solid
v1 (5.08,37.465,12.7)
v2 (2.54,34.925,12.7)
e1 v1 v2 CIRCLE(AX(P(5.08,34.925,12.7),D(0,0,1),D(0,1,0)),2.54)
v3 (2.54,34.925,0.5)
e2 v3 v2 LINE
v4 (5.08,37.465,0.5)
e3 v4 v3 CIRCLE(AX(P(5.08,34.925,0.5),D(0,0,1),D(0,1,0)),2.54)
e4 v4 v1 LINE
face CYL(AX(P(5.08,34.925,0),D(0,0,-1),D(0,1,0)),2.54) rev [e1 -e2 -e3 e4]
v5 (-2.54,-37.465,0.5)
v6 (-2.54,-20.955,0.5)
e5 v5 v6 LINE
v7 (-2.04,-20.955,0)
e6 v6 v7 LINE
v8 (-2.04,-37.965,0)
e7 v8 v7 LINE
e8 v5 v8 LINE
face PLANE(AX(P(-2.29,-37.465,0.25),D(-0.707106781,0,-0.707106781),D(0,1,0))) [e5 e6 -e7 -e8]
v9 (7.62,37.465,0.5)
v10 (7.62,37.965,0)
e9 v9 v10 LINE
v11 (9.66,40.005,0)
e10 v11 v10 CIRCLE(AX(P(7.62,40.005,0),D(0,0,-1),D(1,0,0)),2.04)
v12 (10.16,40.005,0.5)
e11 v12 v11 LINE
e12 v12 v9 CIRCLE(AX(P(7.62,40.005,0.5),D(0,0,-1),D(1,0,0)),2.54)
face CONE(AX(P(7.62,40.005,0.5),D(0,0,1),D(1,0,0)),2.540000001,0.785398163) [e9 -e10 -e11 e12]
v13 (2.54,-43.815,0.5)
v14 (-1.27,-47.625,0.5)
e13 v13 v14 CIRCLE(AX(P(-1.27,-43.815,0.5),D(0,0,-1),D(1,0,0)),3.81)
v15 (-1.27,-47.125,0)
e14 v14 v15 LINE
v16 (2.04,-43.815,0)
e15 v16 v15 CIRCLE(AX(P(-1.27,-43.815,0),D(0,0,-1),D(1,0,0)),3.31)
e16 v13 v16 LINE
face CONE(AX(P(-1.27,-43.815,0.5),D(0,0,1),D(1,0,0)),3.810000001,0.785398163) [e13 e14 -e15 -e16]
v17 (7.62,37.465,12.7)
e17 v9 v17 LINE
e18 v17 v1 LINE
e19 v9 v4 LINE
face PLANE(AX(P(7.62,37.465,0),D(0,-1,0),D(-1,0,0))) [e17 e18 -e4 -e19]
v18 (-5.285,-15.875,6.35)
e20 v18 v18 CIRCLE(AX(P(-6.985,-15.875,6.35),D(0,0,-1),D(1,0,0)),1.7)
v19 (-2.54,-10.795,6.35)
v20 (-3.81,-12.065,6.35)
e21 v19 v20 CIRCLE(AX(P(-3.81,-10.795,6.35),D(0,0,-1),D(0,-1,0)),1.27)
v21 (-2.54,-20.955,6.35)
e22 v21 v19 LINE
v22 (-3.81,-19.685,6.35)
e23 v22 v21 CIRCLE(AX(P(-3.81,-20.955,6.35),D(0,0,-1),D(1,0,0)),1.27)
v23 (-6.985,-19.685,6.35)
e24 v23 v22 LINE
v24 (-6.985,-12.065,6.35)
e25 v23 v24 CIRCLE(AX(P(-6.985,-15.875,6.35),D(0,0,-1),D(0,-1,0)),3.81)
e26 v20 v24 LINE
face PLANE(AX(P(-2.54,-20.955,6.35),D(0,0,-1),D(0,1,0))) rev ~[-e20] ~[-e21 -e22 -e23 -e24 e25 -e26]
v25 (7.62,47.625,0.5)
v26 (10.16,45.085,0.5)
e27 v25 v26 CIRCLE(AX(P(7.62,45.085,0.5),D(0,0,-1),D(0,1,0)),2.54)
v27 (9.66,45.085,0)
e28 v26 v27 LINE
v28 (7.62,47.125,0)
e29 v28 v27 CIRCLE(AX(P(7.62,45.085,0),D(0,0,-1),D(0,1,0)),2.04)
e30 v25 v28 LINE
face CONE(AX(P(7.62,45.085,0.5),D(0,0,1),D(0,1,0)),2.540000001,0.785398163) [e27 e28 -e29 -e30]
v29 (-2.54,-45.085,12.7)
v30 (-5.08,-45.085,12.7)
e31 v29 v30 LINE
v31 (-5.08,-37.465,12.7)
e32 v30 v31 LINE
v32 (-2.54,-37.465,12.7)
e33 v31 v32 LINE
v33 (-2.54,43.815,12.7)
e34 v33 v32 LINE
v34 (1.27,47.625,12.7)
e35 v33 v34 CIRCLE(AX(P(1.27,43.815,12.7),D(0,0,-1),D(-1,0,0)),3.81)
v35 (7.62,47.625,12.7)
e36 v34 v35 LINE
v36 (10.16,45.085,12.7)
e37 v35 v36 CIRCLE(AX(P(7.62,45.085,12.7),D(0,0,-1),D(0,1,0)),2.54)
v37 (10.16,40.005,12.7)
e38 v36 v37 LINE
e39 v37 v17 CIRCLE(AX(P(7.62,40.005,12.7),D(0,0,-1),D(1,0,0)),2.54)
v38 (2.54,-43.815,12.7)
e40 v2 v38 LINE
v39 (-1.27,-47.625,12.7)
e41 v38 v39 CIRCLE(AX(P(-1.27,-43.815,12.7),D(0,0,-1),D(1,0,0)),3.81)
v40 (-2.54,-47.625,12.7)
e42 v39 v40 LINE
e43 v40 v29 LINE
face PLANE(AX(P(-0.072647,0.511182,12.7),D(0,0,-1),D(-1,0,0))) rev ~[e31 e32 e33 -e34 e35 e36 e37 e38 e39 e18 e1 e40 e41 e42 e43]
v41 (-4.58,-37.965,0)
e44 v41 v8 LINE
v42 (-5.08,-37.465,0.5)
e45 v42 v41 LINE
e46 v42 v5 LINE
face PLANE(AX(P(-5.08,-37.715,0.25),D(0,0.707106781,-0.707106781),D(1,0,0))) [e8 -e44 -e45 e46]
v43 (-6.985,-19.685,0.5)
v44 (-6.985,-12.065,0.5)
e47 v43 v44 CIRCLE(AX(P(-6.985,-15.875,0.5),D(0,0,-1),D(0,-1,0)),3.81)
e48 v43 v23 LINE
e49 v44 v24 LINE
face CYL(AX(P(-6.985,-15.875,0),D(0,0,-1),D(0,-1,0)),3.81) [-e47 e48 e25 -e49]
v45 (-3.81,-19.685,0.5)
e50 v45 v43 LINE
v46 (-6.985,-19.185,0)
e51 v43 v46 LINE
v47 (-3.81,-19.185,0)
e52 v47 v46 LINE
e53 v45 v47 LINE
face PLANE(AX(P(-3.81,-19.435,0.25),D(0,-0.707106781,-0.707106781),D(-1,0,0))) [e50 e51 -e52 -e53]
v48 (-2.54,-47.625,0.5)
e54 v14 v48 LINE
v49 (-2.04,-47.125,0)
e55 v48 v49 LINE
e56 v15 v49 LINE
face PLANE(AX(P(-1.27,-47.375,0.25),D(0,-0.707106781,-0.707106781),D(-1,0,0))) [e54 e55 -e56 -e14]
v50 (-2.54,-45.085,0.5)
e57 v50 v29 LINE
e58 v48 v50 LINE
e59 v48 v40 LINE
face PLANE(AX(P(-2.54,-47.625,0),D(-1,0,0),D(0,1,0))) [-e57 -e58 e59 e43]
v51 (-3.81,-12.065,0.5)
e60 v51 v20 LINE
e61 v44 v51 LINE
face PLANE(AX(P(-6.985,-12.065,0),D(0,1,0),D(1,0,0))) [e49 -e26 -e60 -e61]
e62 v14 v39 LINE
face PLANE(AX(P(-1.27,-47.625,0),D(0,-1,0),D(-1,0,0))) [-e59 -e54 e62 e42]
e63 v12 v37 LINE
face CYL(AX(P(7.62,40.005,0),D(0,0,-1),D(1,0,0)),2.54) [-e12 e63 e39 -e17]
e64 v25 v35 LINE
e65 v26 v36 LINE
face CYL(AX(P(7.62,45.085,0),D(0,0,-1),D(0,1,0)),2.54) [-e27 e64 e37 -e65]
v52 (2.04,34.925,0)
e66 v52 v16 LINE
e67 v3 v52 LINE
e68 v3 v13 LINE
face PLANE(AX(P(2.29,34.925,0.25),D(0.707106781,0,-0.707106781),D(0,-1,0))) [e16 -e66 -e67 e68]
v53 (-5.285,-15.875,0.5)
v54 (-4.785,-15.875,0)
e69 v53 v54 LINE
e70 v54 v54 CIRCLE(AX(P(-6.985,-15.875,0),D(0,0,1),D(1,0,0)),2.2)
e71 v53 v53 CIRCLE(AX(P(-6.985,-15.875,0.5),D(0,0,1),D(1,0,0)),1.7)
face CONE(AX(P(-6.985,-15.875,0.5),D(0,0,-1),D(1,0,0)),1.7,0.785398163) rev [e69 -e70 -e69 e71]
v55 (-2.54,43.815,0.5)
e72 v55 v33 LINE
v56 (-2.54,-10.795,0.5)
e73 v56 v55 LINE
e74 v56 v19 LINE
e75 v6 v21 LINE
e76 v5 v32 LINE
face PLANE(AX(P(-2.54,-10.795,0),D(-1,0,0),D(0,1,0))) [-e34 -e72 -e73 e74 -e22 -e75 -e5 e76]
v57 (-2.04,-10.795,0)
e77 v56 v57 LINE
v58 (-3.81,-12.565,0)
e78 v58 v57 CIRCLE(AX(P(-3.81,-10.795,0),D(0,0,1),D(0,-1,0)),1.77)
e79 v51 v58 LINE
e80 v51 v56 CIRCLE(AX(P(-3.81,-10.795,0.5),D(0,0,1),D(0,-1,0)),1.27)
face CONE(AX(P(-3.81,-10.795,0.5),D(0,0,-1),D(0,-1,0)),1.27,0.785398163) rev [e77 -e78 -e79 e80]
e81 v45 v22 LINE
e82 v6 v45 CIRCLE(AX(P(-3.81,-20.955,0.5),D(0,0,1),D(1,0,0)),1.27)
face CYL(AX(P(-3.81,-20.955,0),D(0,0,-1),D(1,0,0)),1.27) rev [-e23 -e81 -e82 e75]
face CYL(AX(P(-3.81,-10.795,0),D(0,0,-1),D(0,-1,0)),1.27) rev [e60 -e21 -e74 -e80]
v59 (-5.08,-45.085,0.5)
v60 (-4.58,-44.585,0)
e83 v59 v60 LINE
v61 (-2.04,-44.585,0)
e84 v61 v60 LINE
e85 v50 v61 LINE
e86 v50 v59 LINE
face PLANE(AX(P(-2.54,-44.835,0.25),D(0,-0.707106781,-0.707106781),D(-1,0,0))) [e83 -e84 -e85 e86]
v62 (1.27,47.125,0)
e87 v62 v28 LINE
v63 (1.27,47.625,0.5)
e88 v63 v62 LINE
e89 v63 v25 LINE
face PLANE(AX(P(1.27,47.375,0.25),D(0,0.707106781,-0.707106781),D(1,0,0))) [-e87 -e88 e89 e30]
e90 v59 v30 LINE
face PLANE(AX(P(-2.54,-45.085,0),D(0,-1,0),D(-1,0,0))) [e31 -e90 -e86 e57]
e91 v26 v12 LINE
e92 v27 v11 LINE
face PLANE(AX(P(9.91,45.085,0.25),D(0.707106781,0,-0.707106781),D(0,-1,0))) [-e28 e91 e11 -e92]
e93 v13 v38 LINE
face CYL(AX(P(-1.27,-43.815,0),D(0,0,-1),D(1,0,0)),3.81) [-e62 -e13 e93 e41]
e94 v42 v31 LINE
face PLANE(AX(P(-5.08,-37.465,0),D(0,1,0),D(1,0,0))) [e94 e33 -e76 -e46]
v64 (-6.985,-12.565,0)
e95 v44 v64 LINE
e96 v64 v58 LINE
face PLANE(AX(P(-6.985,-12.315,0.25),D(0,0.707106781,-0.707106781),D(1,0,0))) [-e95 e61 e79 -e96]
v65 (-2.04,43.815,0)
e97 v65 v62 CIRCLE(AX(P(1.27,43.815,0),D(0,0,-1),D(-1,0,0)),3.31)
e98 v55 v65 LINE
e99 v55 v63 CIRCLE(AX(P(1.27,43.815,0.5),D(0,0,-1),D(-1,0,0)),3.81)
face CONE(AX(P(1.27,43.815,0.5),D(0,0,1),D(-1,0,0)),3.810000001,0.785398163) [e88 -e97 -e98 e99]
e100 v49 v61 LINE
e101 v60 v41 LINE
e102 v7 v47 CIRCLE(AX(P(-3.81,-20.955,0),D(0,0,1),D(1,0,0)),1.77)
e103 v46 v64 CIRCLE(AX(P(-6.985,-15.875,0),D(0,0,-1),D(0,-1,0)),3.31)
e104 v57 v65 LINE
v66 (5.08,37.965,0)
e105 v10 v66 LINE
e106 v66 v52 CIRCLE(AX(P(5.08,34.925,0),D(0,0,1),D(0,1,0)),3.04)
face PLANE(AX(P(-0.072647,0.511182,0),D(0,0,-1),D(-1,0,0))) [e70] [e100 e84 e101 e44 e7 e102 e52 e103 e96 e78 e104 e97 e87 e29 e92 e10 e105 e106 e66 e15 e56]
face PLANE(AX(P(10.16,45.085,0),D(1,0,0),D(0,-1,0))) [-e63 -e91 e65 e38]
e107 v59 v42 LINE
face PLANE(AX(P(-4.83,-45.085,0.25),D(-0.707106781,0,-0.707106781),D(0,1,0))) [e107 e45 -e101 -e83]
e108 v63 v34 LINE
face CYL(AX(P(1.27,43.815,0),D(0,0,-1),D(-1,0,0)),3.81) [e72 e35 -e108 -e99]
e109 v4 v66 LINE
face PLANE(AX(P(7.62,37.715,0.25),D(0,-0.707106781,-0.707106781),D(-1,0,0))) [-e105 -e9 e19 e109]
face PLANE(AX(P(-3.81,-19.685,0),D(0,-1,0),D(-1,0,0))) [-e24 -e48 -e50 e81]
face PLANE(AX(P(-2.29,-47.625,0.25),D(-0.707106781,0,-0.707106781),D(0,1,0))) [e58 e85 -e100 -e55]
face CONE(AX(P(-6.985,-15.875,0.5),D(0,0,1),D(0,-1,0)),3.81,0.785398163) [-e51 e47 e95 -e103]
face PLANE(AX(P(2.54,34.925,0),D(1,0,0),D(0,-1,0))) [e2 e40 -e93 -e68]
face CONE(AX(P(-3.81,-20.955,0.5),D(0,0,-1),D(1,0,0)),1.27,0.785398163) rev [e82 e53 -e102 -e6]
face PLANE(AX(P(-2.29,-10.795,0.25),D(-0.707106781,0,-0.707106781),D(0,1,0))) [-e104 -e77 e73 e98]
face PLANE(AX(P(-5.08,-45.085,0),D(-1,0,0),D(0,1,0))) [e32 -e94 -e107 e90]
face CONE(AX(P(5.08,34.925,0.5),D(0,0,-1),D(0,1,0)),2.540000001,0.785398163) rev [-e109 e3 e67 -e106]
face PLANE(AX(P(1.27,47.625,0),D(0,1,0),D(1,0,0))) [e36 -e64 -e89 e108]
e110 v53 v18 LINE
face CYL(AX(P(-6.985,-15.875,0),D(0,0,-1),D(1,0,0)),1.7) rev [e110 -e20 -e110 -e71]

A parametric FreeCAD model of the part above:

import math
import FreeCAD as App
import Part
import Sketcher
Q = App.Units.Quantity


def edges_at(feature, points):
    """Names of the edges that pass closest to the given points."""
    edges = feature.Shape.Edges
    near = lambda p: min(range(len(edges)), key=lambda i: edges[i].distToShape(Part.Vertex(*p))[0])
    return sorted({f"Edge{near(p) + 1}" for p in points})

doc = App.newDocument("Part")
body = doc.addObject("PartDesign::Body", "Body")

# Sketch on XY plane
sketch1 = body.newObject("Sketcher::SketchObject", "Sketch")
sketch1.AttachmentSupport = (doc.getObject("XY_Plane"), [""])
sketch1.MapMode = "FlatFace"
sketch1.addGeometry([
    Part.ArcOfCircle(Part.Circle(App.Vector(7.6, 45.1, 0), App.Vector(0, 0, 1), 2.5), math.radians(0), math.radians(90)),  # 0
    Part.LineSegment(App.Vector(7.6, 47.6, 0), App.Vector(1.3, 47.6, 0)),  # 1
    Part.ArcOfCircle(Part.Circle(App.Vector(1.3, 43.8, 0), App.Vector(0, 0, 1), 3.8), math.radians(90), math.radians(180)),  # 2
    Part.LineSegment(App.Vector(-2.5, 43.8, 0), App.Vector(-2.5, -10.8, 0)),  # 3
    Part.ArcOfCircle(Part.Circle(App.Vector(-3.8, -10.8, 0), App.Vector(0, 0, 1), 1.3), math.radians(-90), math.radians(0)),  # 4
    Part.LineSegment(App.Vector(-3.8, -12.1, 0), App.Vector(-7, -12.1, 0)),  # 5
    Part.ArcOfCircle(Part.Circle(App.Vector(-7, -15.9, 0), App.Vector(0, 0, 1), 3.8), math.radians(90), math.radians(270)),  # 6
    Part.LineSegment(App.Vector(-7, -19.7, 0), App.Vector(-3.8, -19.7, 0)),  # 7
    Part.ArcOfCircle(Part.Circle(App.Vector(-3.8, -21, 0), App.Vector(0, 0, 1), 1.3), math.radians(0), math.radians(90)),  # 8
    Part.LineSegment(App.Vector(-2.5, -21, 0), App.Vector(-2.5, -37.5, 0)),  # 9
    Part.LineSegment(App.Vector(-2.5, -37.5, 0), App.Vector(-5.1, -37.5, 0)),  # 10
    Part.LineSegment(App.Vector(-5.1, -37.5, 0), App.Vector(-5.1, -45.1, 0)),  # 11
    Part.LineSegment(App.Vector(-5.1, -45.1, 0), App.Vector(-2.5, -45.1, 0)),  # 12
    Part.LineSegment(App.Vector(-2.5, -45.1, 0), App.Vector(-2.5, -47.6, 0)),  # 13
    Part.LineSegment(App.Vector(-2.5, -47.6, 0), App.Vector(-1.3, -47.6, 0)),  # 14
    Part.ArcOfCircle(Part.Circle(App.Vector(-1.3, -43.8, 0), App.Vector(0, 0, 1), 3.8), math.radians(-90), math.radians(0)),  # 15
    Part.LineSegment(App.Vector(2.5, -43.8, 0), App.Vector(2.5, 34.9, 0)),  # 16
    Part.ArcOfCircle(Part.Circle(App.Vector(5.1, 34.9, 0), App.Vector(0, 0, 1), 2.5), math.radians(90), math.radians(180)),  # 17
    Part.LineSegment(App.Vector(5.1, 37.5, 0), App.Vector(7.6, 37.5, 0)),  # 18
    Part.ArcOfCircle(Part.Circle(App.Vector(7.6, 40, 0), App.Vector(0, 0, 1), 2.5), math.radians(-90), math.radians(0)),  # 19
    Part.LineSegment(App.Vector(10.2, 40, 0), App.Vector(10.2, 45.1, 0)),  # 20
    Part.Circle(App.Vector(-7, -15.9, 0), App.Vector(0, 0, 1), 1.7),  # 21
], False)
sketch1.addConstraint([
    Sketcher.Constraint("Tangent", 0, 2, 1, 1),
    Sketcher.Constraint("Tangent", 1, 2, 2, 1),
    Sketcher.Constraint("Tangent", 2, 2, 3, 1),
    Sketcher.Constraint("Tangent", 3, 2, 4, 2),
    Sketcher.Constraint("Tangent", 4, 1, 5, 1),
    Sketcher.Constraint("Tangent", 5, 2, 6, 1),
    Sketcher.Constraint("Tangent", 6, 2, 7, 1),
    Sketcher.Constraint("Tangent", 7, 2, 8, 2),
    Sketcher.Constraint("Tangent", 8, 1, 9, 1),
    Sketcher.Constraint("Coincident", 9, 2, 10, 1),
    Sketcher.Constraint("Coincident", 10, 2, 11, 1),
    Sketcher.Constraint("Coincident", 11, 2, 12, 1),
    Sketcher.Constraint("Coincident", 12, 2, 13, 1),
    Sketcher.Constraint("Coincident", 13, 2, 14, 1),
    Sketcher.Constraint("Tangent", 14, 2, 15, 1),
    Sketcher.Constraint("Tangent", 15, 2, 16, 1),
    Sketcher.Constraint("Tangent", 16, 2, 17, 2),
    Sketcher.Constraint("Tangent", 17, 1, 18, 1),
    Sketcher.Constraint("Tangent", 18, 2, 19, 1),
    Sketcher.Constraint("Tangent", 19, 2, 20, 1),
    Sketcher.Constraint("Tangent", 20, 2, 0, 1),
    Sketcher.Constraint("Horizontal", 1),
    Sketcher.Constraint("Vertical", 3),
    Sketcher.Constraint("Horizontal", 5),
    Sketcher.Constraint("Horizontal", 7),
    Sketcher.Constraint("Vertical", 9),
    Sketcher.Constraint("Horizontal", 10),
    Sketcher.Constraint("Vertical", 11),
    Sketcher.Constraint("Horizontal", 12),
    Sketcher.Constraint("Vertical", 13),
    Sketcher.Constraint("Horizontal", 14),
    Sketcher.Constraint("Vertical", 16),
    Sketcher.Constraint("Horizontal", 18),
    Sketcher.Constraint("Vertical", 20),
    Sketcher.Constraint("Coincident", 21, 3, 6, 3),
    Sketcher.Constraint("Equal", 2, 6),
    Sketcher.Constraint("Equal", 4, 8),
    Sketcher.Constraint("Equal", 6, 15),
    Sketcher.Constraint("Equal", 0, 17),
    Sketcher.Constraint("Equal", 17, 19),
    Sketcher.Constraint("Symmetric", 2, 3, 15, 3, -1, 1),
    Sketcher.Constraint("Symmetric", 10, 2, 17, 1, -1, 1),
    Sketcher.Constraint("Vertical", 4, 3, 8, 3),
    Sketcher.Constraint("Vertical", 9, 2, 12, 2),
    Sketcher.Constraint("Equal", 12, 18),
    Sketcher.Constraint("Equal", 18, 13),
    Sketcher.Constraint("Radius", 0, Q("0.1 in")),
    Sketcher.Constraint("Radius", 2, Q("0.15 in")),
    Sketcher.Constraint("Radius", 4, Q("0.05 in")),
    Sketcher.Constraint("DistanceY", 11, 2, 11, 1, Q("0.3 in")),
    Sketcher.Constraint("DistanceY", 16, 1, 16, 2, Q("3.1 in")),
    Sketcher.Constraint("DistanceY", 6, 3, 17, 3, Q("2 in")),
    Sketcher.Constraint("DistanceX", 1, 2, 1, 1, Q("0.25 in")),
    Sketcher.Constraint("Diameter", 21, 3.4),
    Sketcher.Constraint("DistanceX", 5, 2, 5, 1, Q("0.125 in")),
])
pad1 = body.newObject("PartDesign::Pad", "Pad")
pad1.Profile = sketch1
pad1.Length = Q("0.5 in")

# Sketch on YZ plane
sketch2 = body.newObject("Sketcher::SketchObject", "Sketch001")
sketch2.AttachmentSupport = (doc.getObject("YZ_Plane"), [""])
sketch2.MapMode = "FlatFace"
sketch2.AttachmentOffset = App.Placement(App.Vector(0, 0, -0.1 * 25.4), App.Rotation())
sketch2.addGeometry([
    Part.LineSegment(App.Vector(-11, 6, 0), App.Vector(-21, 6, 0)),
    Part.LineSegment(App.Vector(-21, 6, 0), App.Vector(-21, 13, 0)),
    Part.LineSegment(App.Vector(-21, 13, 0), App.Vector(-11, 13, 0)),
    Part.LineSegment(App.Vector(-11, 13, 0), App.Vector(-11, 6, 0)),
], False)
sketch2.addConstraint([
    Sketcher.Constraint("Coincident", 0, 2, 1, 1),
    Sketcher.Constraint("Coincident", 1, 2, 2, 1),
    Sketcher.Constraint("Coincident", 2, 2, 3, 1),
    Sketcher.Constraint("Coincident", 3, 2, 0, 1),
    Sketcher.Constraint("Horizontal", 0),
    Sketcher.Constraint("Vertical", 1),
    Sketcher.Constraint("Horizontal", 2),
    Sketcher.Constraint("Vertical", 3),
    Sketcher.Constraint("DistanceX", 0, 2, 0, 1, Q("0.4 in")),
    Sketcher.Constraint("DistanceY", 1, 1, 1, 2, Q("0.25 in")),
    Sketcher.Constraint("DistanceY", -1, 1, 1, 2, Q("0.5 in")),
    Sketcher.Constraint("DistanceX", 0, 2, -1, 1, Q("0.825 in")),
])
pocket1 = body.newObject("PartDesign::Pocket", "Pocket")
pocket1.Profile = sketch2
pocket1.Length = Q("0.8 in")
doc.recompute()

chamfer = body.newObject("PartDesign::Chamfer", "Chamfer")
chamfer.Base = (pocket1, edges_at(pocket1, [
    (-3.81, -45.085, 0),
    (-5.08, -41.275, 0),
    (-3.81, -37.465, 0),
    (-2.54, -29.21, 0),
    (-2.912, -20.057, 0),
    (-5.397, -19.685, 0),
    (-10.795, -15.875, 0),
    (-5.397, -12.065, 0),
    (-2.912, -11.693, 0),
    (-2.54, 16.51, 0),
    (-1.424, 46.509, 0),
    (4.445, 47.625, 0),
    (9.416, 46.881, 0),
    (10.16, 42.545, 0),
    (9.416, 38.209, 0),
    (6.35, 37.465, 0),
    (3.284, 36.721, 0),
    (2.54, -4.445, 0),
    (1.424, -46.509, 0),
    (-1.905, -47.625, 0),
    (-2.54, -46.355, 0),
    (-8.685, -15.875, 0),
]))
chamfer.Size = 0.5

doc.recompute()
